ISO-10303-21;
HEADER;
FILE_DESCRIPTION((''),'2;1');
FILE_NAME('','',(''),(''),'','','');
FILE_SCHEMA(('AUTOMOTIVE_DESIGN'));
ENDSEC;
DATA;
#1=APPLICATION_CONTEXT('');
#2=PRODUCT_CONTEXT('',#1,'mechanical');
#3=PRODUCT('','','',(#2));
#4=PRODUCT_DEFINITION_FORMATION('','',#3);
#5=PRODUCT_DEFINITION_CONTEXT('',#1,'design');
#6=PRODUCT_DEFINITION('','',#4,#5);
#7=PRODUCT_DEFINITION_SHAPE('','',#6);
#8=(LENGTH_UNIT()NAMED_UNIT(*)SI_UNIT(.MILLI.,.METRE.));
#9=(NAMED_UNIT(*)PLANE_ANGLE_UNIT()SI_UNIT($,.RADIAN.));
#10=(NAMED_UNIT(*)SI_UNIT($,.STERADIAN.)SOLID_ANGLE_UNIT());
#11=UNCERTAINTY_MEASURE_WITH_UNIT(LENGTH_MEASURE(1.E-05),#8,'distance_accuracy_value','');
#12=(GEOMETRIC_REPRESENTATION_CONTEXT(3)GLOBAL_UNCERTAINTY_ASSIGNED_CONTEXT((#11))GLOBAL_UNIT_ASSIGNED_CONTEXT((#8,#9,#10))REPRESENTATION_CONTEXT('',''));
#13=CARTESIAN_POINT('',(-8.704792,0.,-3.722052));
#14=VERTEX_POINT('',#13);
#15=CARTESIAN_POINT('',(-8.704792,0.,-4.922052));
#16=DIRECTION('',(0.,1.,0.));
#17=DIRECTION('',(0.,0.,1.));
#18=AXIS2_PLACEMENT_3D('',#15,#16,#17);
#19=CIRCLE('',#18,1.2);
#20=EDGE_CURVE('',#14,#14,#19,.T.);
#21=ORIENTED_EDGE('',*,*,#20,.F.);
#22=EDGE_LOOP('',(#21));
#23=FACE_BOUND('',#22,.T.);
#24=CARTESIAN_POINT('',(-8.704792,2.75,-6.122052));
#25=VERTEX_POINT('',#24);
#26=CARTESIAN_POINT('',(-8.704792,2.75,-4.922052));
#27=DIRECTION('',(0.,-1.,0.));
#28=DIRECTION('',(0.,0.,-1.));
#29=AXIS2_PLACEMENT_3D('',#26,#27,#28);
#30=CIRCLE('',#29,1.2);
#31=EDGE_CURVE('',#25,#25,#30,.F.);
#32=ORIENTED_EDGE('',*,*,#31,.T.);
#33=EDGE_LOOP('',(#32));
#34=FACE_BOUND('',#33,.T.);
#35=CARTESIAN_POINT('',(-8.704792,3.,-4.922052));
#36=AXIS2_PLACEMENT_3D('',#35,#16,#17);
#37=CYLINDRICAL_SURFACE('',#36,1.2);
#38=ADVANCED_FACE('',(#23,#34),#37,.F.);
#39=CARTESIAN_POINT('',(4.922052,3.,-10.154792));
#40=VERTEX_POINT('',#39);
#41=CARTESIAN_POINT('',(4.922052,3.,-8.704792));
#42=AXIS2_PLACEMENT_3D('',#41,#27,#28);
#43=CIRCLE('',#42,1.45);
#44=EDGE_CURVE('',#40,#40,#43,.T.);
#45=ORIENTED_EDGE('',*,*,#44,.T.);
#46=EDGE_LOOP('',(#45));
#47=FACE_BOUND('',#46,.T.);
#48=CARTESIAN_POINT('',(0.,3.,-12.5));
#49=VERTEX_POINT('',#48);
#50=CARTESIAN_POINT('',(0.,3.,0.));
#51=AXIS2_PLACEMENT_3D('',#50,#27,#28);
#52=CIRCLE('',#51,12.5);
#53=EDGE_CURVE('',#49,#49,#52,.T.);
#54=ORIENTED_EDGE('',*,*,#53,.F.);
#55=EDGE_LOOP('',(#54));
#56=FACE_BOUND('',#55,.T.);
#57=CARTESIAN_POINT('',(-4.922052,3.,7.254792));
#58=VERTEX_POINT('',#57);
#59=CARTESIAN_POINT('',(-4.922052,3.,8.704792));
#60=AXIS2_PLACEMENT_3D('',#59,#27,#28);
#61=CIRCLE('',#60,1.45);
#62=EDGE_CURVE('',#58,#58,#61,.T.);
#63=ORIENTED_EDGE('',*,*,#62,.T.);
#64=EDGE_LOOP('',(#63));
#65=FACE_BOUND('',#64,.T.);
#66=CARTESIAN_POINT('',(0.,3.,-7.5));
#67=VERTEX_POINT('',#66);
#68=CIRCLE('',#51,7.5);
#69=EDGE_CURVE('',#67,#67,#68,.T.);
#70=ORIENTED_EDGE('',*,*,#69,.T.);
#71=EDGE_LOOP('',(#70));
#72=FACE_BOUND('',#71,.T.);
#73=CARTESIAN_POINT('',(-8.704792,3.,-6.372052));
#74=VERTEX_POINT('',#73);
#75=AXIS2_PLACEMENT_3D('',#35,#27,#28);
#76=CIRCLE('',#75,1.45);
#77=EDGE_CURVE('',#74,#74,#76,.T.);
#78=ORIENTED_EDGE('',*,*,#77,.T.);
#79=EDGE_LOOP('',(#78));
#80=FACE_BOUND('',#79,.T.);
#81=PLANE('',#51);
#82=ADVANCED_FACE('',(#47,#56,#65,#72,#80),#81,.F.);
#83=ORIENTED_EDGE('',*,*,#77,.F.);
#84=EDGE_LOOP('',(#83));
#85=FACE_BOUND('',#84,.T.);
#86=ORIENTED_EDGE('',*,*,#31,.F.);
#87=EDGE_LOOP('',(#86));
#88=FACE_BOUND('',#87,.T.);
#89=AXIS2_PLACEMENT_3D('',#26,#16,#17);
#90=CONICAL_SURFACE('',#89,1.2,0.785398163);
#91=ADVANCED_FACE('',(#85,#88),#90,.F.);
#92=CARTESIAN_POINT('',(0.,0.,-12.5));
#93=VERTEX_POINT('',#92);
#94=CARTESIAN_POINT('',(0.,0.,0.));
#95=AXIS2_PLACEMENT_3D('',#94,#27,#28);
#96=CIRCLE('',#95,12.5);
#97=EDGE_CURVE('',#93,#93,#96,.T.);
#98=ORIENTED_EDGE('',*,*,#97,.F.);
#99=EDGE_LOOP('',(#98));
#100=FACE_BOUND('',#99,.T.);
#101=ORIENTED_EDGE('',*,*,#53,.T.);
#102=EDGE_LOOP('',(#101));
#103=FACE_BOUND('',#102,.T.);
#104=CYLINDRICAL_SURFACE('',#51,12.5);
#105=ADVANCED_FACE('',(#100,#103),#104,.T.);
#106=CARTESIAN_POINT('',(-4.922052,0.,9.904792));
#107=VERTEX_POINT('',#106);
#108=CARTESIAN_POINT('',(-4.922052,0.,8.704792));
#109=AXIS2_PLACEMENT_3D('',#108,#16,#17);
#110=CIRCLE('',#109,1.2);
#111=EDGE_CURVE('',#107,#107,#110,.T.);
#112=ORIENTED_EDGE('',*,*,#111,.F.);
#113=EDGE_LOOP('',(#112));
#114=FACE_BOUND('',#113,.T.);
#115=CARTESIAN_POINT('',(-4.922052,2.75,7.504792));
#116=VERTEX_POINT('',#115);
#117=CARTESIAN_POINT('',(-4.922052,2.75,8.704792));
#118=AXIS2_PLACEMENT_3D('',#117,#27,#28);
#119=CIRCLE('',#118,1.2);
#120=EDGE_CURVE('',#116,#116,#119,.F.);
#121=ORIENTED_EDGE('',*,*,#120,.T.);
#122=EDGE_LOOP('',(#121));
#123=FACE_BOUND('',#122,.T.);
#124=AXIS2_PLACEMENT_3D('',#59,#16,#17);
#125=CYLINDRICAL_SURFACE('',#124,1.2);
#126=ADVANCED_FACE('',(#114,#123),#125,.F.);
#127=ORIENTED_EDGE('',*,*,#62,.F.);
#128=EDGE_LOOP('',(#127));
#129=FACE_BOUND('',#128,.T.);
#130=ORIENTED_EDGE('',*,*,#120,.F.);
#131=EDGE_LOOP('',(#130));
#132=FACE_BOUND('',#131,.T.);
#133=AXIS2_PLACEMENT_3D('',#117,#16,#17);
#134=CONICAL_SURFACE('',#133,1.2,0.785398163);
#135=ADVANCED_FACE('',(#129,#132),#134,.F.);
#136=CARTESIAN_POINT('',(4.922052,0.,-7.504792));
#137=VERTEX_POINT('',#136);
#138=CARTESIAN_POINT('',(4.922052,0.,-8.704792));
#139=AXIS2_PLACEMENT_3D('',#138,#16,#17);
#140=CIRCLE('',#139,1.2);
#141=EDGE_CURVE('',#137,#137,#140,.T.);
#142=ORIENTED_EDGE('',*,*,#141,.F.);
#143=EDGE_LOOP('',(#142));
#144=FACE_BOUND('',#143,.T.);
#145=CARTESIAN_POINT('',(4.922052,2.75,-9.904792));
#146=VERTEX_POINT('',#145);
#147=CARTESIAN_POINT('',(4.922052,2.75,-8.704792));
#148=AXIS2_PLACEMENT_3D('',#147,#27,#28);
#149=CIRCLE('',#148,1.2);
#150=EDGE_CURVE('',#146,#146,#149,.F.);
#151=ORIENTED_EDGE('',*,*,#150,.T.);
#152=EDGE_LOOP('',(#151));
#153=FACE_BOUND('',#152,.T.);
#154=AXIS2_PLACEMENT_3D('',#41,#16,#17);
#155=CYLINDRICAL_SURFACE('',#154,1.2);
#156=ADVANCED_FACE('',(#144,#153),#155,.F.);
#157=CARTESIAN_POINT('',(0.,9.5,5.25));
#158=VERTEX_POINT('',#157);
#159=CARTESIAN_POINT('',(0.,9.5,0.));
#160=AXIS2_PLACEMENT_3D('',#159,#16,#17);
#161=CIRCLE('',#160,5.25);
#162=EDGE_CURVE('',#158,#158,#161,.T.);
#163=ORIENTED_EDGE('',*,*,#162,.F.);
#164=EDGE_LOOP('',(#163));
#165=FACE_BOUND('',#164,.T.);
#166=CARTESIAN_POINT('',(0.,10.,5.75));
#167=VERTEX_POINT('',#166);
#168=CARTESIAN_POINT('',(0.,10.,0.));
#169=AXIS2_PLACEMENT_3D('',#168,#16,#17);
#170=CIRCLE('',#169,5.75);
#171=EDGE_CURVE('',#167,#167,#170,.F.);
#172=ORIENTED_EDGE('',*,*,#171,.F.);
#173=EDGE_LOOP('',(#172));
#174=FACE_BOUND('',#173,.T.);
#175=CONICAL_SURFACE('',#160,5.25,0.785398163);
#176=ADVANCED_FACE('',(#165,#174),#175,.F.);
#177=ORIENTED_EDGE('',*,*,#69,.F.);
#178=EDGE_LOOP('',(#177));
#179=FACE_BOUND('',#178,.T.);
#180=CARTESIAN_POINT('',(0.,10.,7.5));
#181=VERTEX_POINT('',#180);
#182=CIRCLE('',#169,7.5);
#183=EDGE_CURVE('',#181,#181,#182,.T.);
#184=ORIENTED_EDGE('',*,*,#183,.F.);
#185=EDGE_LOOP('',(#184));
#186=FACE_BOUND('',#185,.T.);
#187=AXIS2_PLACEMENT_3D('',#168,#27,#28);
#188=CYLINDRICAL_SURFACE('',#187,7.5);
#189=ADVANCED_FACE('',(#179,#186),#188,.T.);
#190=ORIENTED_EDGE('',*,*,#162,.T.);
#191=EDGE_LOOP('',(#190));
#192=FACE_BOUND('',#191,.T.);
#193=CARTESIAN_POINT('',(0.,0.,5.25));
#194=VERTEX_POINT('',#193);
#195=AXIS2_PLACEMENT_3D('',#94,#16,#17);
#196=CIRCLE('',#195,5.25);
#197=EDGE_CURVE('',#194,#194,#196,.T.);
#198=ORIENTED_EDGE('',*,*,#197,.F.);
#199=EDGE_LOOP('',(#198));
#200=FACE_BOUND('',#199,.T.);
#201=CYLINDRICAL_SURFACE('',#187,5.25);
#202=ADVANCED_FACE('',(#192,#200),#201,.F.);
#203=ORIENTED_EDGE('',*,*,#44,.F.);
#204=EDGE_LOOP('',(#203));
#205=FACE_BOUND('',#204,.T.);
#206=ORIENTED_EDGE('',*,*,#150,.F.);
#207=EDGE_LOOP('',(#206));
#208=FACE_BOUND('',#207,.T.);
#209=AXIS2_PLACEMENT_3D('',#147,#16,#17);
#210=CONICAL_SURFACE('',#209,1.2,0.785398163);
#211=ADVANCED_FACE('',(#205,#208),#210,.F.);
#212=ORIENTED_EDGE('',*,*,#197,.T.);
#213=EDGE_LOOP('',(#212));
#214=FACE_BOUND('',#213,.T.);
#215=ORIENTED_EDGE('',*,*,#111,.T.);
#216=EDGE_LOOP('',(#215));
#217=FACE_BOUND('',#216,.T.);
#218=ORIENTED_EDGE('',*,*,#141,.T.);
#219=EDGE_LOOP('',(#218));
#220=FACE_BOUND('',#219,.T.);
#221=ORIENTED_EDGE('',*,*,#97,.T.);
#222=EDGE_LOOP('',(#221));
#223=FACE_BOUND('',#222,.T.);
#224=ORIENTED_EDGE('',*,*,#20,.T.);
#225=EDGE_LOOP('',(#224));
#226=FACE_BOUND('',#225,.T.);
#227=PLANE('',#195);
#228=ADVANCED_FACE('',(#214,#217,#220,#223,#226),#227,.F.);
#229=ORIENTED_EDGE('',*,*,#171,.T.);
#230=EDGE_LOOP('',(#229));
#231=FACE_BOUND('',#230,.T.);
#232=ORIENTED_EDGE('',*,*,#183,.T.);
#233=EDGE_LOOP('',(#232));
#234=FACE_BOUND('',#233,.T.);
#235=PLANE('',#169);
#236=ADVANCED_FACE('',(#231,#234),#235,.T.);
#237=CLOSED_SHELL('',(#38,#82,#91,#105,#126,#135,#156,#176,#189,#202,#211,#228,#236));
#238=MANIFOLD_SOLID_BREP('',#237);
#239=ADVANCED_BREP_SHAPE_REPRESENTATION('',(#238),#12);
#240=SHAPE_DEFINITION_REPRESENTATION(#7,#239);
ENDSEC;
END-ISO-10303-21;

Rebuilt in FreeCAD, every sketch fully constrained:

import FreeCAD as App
import Part
import Sketcher
from FreeCAD import Vector


def edges_at(feature, points):
    """Names of the edges that pass closest to the given points."""
    edges = feature.Shape.Edges
    near = lambda p: min(range(len(edges)), key=lambda i: edges[i].distToShape(Part.Vertex(*p))[0])
    return sorted({f"Edge{near(p) + 1}" for p in points})

doc = App.newDocument("Part")
body = doc.addObject("PartDesign::Body", "Body")

# Sketch on XZ plane
sketch1 = body.newObject("Sketcher::SketchObject", "Sketch")
sketch1.AttachmentSupport = (doc.getObject("XZ_Plane"), [""])
sketch1.MapMode = "FlatFace"
sketch1.addGeometry([
    Part.Circle(Vector(0, 0, 0), Vector(0, 0, 1), 7.5),
    Part.Circle(Vector(0, 0, 0), Vector(0, 0, 1), 5.25),
], False)
sketch1.addConstraint([
    Sketcher.Constraint("Coincident", 0, 3, -1, 1),
    Sketcher.Constraint("Coincident", 1, 3, -1, 1),
    Sketcher.Constraint("Diameter", 0, 15.0),
    Sketcher.Constraint("Diameter", 1, 10.5),
])
pad1 = body.newObject("PartDesign::Pad", "Pad")
pad1.Profile = sketch1
pad1.Length = 10
pad1.Reversed = True

# Sketch on XZ plane
sketch2 = body.newObject("Sketcher::SketchObject", "Sketch001")
sketch2.AttachmentSupport = (doc.getObject("XZ_Plane"), [""])
sketch2.MapMode = "FlatFace"
sketch2.addGeometry([
    Part.Circle(Vector(0, 0, 0), Vector(0, 0, 1), 12.5),
    Part.Circle(Vector(0, 0, 0), Vector(0, 0, 1), 7.5),
], False)
sketch2.addConstraint([
    Sketcher.Constraint("Coincident", 0, 3, -1, 1),
    Sketcher.Constraint("Coincident", 1, 3, -1, 1),
    Sketcher.Constraint("Diameter", 0, 25.0),
    Sketcher.Constraint("Diameter", 1, 15.0),
])
pad2 = body.newObject("PartDesign::Pad", "Pad001")
pad2.Profile = sketch2
pad2.Length = 3
pad2.Reversed = True

# Sketch on XZ plane
sketch3 = body.newObject("Sketcher::SketchObject", "Sketch002")
sketch3.AttachmentSupport = (doc.getObject("XZ_Plane"), [""])
sketch3.MapMode = "FlatFace"
sketch3.AttachmentOffset = App.Placement(Vector(0, 0, -3), App.Rotation())
sketch3.addGeometry([
    Part.Circle(Vector(4.922052, -8.704792, 0), Vector(0, 0, 1), 1.2),
    Part.Circle(Vector(-4.922052, 8.704792, 0), Vector(0, 0, 1), 1.2),
    Part.Circle(Vector(-8.704792, -4.922052, 0), Vector(0, 0, 1), 1.2),
], False)
sketch3.addConstraint([
    Sketcher.Constraint("Equal", 0, 1),
    Sketcher.Constraint("Equal", 1, 2),
    Sketcher.Constraint("Symmetric", 0, 3, 1, 3, -1, 1),
    Sketcher.Constraint("Diameter", 0, 2.4),
    Sketcher.Constraint("DistanceX", -1, 1, 0, 3, 4.922052),
    Sketcher.Constraint("DistanceY", 2, 3, -1, 1, 4.922052),
    Sketcher.Constraint("DistanceY", 0, 3, 2, 3, 3.78274),
    Sketcher.Constraint("DistanceX", 2, 3, 1, 3, 3.78274),
])
doc.recompute()
hole = body.newObject("PartDesign::Hole", "Hole")
hole.Profile = sketch3
hole.ThreadType = "None"
hole.Diameter = 2.4
hole.DepthType = "ThroughAll"
hole.Reversed = True
doc.recompute()

chamfer = body.newObject("PartDesign::Chamfer", "Chamfer")
chamfer.Base = (hole, edges_at(hole, [(-5.25, 10, 0)]))
chamfer.Size = 0.5
doc.recompute()

chamfer2 = body.newObject("PartDesign::Chamfer", "Chamfer001")
chamfer2.Base = (chamfer, edges_at(chamfer, [(-9.295, 3, -3.877), (-5.513, 3, 9.749), (4.331, 3, -7.66)]))
chamfer2.Size = 0.25

doc.recompute()
